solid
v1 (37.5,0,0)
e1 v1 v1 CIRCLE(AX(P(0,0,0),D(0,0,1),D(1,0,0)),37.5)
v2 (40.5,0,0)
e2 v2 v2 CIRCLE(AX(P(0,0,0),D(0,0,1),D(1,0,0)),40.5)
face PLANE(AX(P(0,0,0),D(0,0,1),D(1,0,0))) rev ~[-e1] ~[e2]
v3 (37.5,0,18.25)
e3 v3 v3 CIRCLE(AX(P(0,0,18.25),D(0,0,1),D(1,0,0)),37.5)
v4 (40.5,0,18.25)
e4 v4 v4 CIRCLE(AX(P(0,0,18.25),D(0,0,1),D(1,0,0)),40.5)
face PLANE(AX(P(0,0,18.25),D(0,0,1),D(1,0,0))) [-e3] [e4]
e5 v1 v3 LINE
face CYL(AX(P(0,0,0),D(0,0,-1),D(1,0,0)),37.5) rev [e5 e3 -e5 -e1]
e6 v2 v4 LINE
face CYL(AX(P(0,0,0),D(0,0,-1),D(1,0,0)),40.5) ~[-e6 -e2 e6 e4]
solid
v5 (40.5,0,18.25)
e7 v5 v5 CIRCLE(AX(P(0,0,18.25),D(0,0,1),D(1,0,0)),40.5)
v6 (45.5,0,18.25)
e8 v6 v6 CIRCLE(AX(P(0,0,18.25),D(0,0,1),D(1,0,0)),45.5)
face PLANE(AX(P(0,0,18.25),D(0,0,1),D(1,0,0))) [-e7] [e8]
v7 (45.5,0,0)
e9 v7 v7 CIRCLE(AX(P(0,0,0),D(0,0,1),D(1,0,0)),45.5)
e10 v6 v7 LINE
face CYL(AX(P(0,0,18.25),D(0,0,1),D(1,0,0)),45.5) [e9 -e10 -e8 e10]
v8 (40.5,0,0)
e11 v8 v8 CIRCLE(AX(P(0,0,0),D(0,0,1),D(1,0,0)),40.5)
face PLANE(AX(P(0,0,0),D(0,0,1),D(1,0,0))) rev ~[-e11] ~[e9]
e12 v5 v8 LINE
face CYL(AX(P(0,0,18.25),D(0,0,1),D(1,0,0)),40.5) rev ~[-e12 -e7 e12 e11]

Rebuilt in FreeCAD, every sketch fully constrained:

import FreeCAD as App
import Part
import Sketcher
from FreeCAD import Vector

doc = App.newDocument("Part")
params = doc.addObject("Spreadsheet::Sheet", "Params")
for row, (alias, value) in enumerate([
    ("sketch1_diameter", "81 mm"),
    ("sketch1_diameter2", "75 mm"),
    ("pad1_length", "18.25 mm"),
    ("sketch2_diameter", "91 mm"),
    ("sketch2_diameter2", "81 mm"),
    ("pad2_length", "18.25 mm"),
], start=1):
    params.set(f"A{row}", alias)
    params.set(f"B{row}", "=" + value)
    params.setAlias(f"B{row}", alias)

body = doc.addObject("PartDesign::Body", "Body")

# Sketch on XY plane
sketch1 = body.newObject("Sketcher::SketchObject", "Sketch")
sketch1.AttachmentSupport = (doc.getObject("XY_Plane"), [""])
sketch1.MapMode = "FlatFace"
sketch1.addGeometry([
    Part.Circle(Vector(0, 0, 0), Vector(0, 0, 1), 40),
    Part.Circle(Vector(0, 0, 0), Vector(0, 0, 1), 38),
], False)
sketch1.addConstraint([
    Sketcher.Constraint("Coincident", 0, 3, -1, 1),
    Sketcher.Constraint("Coincident", 1, 3, -1, 1),
    Sketcher.Constraint("Diameter", 0, 81.0),
    Sketcher.Constraint("Diameter", 1, 75.0),
])
sketch1.setExpression("Constraints[2]", "Params.sketch1_diameter")
sketch1.setExpression("Constraints[3]", "Params.sketch1_diameter2")
pad1 = body.newObject("PartDesign::Pad", "Pad")
pad1.Profile = sketch1
pad1.setExpression("Length", "Params.pad1_length")
body2 = doc.addObject("PartDesign::Body", "Body001")

# Sketch on XY plane
sketch2 = body2.newObject("Sketcher::SketchObject", "Sketch001")
sketch2.AttachmentSupport = (doc.getObject("XY_Plane001"), [""])
sketch2.MapMode = "FlatFace"
sketch2.AttachmentOffset = App.Placement(Vector(0, 0, 18.25), App.Rotation())
sketch2.addGeometry([
    Part.Circle(Vector(0, 0, 0), Vector(0, 0, 1), 46),
    Part.Circle(Vector(0, 0, 0), Vector(0, 0, 1), 40),
], False)
sketch2.addConstraint([
    Sketcher.Constraint("Coincident", 0, 3, -1, 1),
    Sketcher.Constraint("Coincident", 1, 3, -1, 1),
    Sketcher.Constraint("Diameter", 0, 91.0),
    Sketcher.Constraint("Diameter", 1, 81.0),
])
sketch2.setExpression("Constraints[2]", "Params.sketch2_diameter")
sketch2.setExpression("Constraints[3]", "Params.sketch2_diameter2")
pad2 = body2.newObject("PartDesign::Pad", "Pad001")
pad2.Profile = sketch2
pad2.setExpression("Length", "Params.pad2_length")
pad2.Reversed = True

doc.recompute()
